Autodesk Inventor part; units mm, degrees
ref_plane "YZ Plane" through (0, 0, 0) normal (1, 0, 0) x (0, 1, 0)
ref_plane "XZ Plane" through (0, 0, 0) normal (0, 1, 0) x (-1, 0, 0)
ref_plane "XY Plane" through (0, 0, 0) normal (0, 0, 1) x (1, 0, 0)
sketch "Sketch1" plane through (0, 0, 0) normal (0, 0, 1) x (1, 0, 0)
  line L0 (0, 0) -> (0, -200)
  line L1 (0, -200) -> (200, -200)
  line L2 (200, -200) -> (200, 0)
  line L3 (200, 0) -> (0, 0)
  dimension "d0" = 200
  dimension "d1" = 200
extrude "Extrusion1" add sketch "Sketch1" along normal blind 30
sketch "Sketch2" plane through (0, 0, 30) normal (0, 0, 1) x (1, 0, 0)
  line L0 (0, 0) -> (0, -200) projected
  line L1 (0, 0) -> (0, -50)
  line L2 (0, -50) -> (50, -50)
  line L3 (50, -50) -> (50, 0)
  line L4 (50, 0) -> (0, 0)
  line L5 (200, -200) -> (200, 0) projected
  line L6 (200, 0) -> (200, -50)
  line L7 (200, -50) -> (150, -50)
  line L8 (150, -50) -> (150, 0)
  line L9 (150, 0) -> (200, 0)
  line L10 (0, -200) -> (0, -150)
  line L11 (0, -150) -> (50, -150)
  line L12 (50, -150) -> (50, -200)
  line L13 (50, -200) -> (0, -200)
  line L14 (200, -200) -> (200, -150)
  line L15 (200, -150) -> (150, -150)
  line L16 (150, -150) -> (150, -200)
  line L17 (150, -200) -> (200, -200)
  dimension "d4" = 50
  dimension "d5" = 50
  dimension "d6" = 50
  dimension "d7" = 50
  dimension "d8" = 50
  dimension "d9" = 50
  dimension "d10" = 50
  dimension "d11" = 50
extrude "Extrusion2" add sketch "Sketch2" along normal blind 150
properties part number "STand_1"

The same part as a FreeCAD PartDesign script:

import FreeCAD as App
import Part
import Sketcher

V = App.Vector
Q = App.Units.Quantity


def add_polygon(sketch, points):
    """Adds a closed chain of lines whose ends are joined by coincident constraints."""
    first, n = sketch.GeometryCount, len(points)
    for a, b in zip(points, points[1:] + points[:1]):
        sketch.addGeometry(Part.LineSegment(App.Vector(*a, 0), App.Vector(*b, 0)), False)
    for i in range(n):
        sketch.addConstraint(Sketcher.Constraint("Coincident", first + i, 2, first + (i + 1) % n, 1))

doc = App.newDocument("Part")
body = doc.addObject("PartDesign::Body", "Body")

# Sketch on XY plane
sketch1 = doc.addObject("Sketcher::SketchObject", "Sketch")
body.addObject(sketch1)
sketch1.AttachmentSupport = (doc.XY_Plane, [""])
sketch1.MapMode = "FlatFace"
add_polygon(sketch1, [(200, 0), (0, 0), (0, -200), (200, -200)])  # lines 0-3
sketch1.addConstraint([
    Sketcher.Constraint("Horizontal", 0),
    Sketcher.Constraint("Vertical", 1),
    Sketcher.Constraint("Horizontal", 2),
    Sketcher.Constraint("Vertical", 3),
    Sketcher.Constraint("Coincident", 0, 2, -1, 1),
    Sketcher.Constraint("Equal", 2, 1),
    Sketcher.Constraint("DistanceX", 0, 2, 0, 1, Q("200 mm")),
])
pad1 = doc.addObject("PartDesign::Pad", "Pad")
body.addObject(pad1)
pad1.Profile = sketch1
pad1.Length = 30

# Sketch on XY plane
sketch2 = doc.addObject("Sketcher::SketchObject", "Sketch001")
body.addObject(sketch2)
sketch2.AttachmentSupport = (doc.XY_Plane, [""])
sketch2.MapMode = "FlatFace"
sketch2.AttachmentOffset = App.Placement(V(0, 0, 30), App.Rotation())
add_polygon(sketch2, [(50, 0), (0, 0), (0, -50), (50, -50)])  # lines 0-3
add_polygon(sketch2, [(50, -150), (0, -150), (0, -200), (50, -200)])  # lines 4-7
add_polygon(sketch2, [(150, -200), (200, -200), (200, -150), (150, -150)])  # lines 8-11
add_polygon(sketch2, [(150, -50), (200, -50), (200, 0), (150, 0)])  # lines 12-15
sketch2.addConstraint([
    Sketcher.Constraint("Horizontal", 0),
    Sketcher.Constraint("Vertical", 1),
    Sketcher.Constraint("Horizontal", 2),
    Sketcher.Constraint("Vertical", 3),
    Sketcher.Constraint("Horizontal", 4),
    Sketcher.Constraint("Vertical", 5),
    Sketcher.Constraint("Horizontal", 6),
    Sketcher.Constraint("Vertical", 7),
    Sketcher.Constraint("Horizontal", 8),
    Sketcher.Constraint("Vertical", 9),
    Sketcher.Constraint("Horizontal", 10),
    Sketcher.Constraint("Vertical", 11),
    Sketcher.Constraint("Horizontal", 12),
    Sketcher.Constraint("Vertical", 13),
    Sketcher.Constraint("Horizontal", 14),
    Sketcher.Constraint("Vertical", 15),
    Sketcher.Constraint("Coincident", 0, 2, -1, 1),
    Sketcher.Constraint("PointOnObject", 4, 2, -2),
    Sketcher.Constraint("PointOnObject", 13, 2, -1),
    Sketcher.Constraint("Horizontal", 6, 2, 8, 2),
    Sketcher.Constraint("Horizontal", 7, 2, 9, 2),
    Sketcher.Constraint("Horizontal", 2, 2, 12, 2),
    Sketcher.Constraint("Vertical", 3, 2, 6, 2),
    Sketcher.Constraint("Vertical", 9, 2, 12, 2),
    Sketcher.Constraint("Vertical", 11, 2, 14, 2),
    Sketcher.Constraint("Equal", 6, 8),
    Sketcher.Constraint("Equal", 14, 1),
    Sketcher.Constraint("Equal", 3, 5),
    Sketcher.Constraint("DistanceX", 0, 2, 0, 1, Q("50 mm")),
    Sketcher.Constraint("DistanceY", 4, 2, -1, 1, Q("150 mm")),
    Sketcher.Constraint("DistanceX", -1, 1, 8, 2, Q("200 mm")),
])
pad2 = doc.addObject("PartDesign::Pad", "Pad001")
body.addObject(pad2)
pad2.Profile = sketch2
pad2.Length = 150

doc.recompute()
